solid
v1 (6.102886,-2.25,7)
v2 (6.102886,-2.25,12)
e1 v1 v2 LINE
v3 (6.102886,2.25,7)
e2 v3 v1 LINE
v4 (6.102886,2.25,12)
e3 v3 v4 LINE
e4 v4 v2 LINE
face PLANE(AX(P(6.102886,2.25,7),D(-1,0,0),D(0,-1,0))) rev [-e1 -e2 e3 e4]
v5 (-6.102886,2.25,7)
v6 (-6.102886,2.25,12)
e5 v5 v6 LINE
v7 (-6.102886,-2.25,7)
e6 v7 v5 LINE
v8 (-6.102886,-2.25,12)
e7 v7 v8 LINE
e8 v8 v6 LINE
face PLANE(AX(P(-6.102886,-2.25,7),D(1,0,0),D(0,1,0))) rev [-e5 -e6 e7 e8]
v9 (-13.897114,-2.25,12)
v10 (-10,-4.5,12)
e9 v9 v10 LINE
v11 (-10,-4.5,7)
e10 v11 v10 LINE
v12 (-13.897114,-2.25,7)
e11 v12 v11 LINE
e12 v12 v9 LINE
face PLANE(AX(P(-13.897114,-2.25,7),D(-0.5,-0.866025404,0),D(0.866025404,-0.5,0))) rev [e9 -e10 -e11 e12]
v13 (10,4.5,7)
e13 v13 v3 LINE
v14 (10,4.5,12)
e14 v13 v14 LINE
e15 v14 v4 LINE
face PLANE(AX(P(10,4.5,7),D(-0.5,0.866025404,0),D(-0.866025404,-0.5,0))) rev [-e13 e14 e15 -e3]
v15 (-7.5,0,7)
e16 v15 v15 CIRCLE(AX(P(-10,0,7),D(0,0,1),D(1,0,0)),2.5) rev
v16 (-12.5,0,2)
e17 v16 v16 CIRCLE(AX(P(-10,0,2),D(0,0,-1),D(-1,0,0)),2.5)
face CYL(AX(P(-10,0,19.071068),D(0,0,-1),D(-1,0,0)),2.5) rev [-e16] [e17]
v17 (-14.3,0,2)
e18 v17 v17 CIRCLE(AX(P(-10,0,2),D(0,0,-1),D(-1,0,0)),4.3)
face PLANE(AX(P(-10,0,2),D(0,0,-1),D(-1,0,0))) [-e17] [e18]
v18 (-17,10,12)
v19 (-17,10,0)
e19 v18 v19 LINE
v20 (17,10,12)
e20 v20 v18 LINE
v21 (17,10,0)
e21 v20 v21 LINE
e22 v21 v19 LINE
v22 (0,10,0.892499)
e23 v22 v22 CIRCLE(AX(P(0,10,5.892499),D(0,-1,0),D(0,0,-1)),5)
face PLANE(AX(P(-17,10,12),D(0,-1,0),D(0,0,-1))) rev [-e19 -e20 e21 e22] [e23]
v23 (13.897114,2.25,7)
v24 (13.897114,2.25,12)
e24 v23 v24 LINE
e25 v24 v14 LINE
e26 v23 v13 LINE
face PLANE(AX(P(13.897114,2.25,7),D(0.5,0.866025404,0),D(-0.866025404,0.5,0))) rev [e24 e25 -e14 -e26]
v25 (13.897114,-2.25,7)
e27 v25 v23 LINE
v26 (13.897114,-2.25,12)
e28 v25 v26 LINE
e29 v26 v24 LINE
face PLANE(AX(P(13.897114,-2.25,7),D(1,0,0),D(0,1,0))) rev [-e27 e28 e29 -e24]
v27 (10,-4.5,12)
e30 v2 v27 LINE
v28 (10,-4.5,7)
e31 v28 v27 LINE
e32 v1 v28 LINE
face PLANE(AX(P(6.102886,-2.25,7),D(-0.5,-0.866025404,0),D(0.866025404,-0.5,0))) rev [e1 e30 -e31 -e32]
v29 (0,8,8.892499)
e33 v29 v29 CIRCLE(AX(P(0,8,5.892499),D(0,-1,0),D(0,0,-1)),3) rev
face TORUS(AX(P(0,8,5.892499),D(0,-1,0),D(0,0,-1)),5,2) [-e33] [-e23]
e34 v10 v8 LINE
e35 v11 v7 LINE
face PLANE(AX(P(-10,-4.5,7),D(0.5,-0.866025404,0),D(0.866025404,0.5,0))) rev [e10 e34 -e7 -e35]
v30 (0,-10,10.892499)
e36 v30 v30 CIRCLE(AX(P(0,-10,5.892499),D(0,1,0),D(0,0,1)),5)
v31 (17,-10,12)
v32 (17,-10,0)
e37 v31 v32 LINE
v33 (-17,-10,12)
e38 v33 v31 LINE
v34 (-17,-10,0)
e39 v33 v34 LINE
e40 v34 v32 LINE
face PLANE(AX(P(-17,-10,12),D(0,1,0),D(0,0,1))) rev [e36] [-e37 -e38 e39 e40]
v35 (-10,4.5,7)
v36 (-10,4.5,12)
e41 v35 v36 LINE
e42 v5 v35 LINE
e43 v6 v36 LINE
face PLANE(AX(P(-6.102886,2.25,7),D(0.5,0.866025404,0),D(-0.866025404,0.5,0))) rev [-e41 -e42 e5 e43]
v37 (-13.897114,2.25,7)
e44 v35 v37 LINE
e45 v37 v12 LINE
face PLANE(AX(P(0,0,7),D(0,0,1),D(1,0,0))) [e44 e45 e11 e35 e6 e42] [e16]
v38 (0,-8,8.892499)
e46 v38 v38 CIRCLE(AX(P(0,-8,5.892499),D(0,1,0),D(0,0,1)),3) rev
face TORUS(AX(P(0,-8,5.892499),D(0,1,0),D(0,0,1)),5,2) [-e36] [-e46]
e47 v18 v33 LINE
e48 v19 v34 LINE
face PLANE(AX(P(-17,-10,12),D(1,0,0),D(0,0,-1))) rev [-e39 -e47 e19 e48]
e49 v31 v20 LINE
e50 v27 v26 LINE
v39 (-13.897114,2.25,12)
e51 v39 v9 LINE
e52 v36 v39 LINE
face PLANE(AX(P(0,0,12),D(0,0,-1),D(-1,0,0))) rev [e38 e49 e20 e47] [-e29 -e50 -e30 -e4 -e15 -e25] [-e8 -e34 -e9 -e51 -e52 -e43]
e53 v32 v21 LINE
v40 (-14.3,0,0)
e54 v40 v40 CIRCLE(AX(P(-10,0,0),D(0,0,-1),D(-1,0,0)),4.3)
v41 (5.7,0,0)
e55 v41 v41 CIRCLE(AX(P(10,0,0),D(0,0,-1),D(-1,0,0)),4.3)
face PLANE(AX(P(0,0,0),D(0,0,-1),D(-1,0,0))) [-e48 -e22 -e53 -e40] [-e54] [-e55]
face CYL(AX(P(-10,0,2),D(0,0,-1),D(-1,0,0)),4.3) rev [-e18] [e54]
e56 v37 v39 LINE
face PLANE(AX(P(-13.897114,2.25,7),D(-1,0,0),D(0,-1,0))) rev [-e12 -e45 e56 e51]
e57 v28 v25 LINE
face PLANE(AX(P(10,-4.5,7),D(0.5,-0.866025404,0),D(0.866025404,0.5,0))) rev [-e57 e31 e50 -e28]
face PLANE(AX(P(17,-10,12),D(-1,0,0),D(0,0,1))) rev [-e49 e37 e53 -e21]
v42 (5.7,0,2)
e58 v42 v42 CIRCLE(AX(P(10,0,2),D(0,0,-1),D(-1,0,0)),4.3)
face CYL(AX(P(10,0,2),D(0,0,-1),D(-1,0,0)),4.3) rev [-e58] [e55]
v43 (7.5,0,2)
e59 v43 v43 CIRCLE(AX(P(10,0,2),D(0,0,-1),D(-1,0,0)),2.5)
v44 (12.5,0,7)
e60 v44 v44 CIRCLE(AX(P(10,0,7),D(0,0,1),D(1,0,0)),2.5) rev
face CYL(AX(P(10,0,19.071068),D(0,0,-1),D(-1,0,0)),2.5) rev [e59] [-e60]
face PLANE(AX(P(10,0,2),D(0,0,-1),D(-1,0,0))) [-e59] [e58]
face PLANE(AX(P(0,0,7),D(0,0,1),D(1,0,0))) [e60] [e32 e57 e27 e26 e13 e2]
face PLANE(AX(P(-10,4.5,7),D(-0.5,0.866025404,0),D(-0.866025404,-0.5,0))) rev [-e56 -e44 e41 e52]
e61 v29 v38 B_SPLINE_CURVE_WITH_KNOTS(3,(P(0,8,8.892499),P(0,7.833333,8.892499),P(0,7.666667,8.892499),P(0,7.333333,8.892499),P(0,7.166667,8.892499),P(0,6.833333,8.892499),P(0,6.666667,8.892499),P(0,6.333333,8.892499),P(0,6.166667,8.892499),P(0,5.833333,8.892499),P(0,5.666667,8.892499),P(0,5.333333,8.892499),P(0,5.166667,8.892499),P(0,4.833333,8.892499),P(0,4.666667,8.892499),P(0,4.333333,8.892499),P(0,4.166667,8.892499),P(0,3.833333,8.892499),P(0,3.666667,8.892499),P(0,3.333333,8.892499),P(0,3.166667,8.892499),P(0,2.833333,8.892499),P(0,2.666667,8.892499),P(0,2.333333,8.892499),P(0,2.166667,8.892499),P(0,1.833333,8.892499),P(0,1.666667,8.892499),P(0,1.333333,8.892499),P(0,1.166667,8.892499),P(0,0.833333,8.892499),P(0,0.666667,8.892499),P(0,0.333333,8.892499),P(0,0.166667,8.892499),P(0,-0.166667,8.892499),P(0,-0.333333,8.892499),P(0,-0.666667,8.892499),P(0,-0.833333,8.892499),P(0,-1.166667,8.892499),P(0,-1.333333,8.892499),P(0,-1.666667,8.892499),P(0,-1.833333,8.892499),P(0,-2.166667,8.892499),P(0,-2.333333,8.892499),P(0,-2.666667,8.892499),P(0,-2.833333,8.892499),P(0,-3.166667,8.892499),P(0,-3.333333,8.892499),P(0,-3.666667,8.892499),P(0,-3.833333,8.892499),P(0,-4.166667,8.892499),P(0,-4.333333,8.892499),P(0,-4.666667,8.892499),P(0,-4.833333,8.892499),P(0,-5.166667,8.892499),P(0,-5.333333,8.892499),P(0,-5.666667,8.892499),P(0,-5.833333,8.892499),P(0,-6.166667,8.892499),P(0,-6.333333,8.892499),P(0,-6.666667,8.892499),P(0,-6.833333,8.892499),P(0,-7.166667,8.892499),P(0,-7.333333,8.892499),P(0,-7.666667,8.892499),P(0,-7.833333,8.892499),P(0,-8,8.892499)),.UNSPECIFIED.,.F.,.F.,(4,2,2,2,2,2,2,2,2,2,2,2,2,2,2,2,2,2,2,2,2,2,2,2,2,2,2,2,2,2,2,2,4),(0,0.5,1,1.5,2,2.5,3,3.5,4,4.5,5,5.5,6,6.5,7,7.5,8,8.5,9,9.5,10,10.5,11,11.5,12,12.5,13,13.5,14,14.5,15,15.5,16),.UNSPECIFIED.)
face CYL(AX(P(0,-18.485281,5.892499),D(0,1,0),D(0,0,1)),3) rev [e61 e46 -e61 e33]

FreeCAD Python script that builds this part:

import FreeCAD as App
import Part
import Sketcher
Q = App.Units.Quantity


def edges_at(feature, points):
    """Names of the edges that pass closest to the given points."""
    edges = feature.Shape.Edges
    near = lambda p: min(range(len(edges)), key=lambda i: edges[i].distToShape(Part.Vertex(*p))[0])
    return sorted({f"Edge{near(p) + 1}" for p in points})


def add_polygon(sketch, points):
    """Adds a closed chain of lines whose ends are joined by coincident constraints."""
    first, n = sketch.GeometryCount, len(points)
    for a, b in zip(points, points[1:] + points[:1]):
        sketch.addGeometry(Part.LineSegment(App.Vector(*a, 0), App.Vector(*b, 0)), False)
    for i in range(n):
        sketch.addConstraint(Sketcher.Constraint("Coincident", first + i, 2, first + (i + 1) % n, 1))

doc = App.newDocument("Part")
body = doc.addObject("PartDesign::Body", "Body")

# Sketch on XY plane
sketch1 = doc.addObject("Sketcher::SketchObject", "Sketch")
body.addObject(sketch1)
sketch1.AttachmentSupport = (doc.XY_Plane, [""])
sketch1.MapMode = "FlatFace"
add_polygon(sketch1, [(-17, 10), (-17, -10), (17, -10), (17, 10)])  # lines 0-3
sketch1.addConstraint(Sketcher.Constraint("Vertical", 0))
sketch1.addConstraint(Sketcher.Constraint("Horizontal", 1))
sketch1.addConstraint(Sketcher.Constraint("Vertical", 2))
sketch1.addConstraint(Sketcher.Constraint("Horizontal", 3))
sketch1.addConstraint(Sketcher.Constraint("Symmetric", 0, 2, 2, 2, -1, 1))
sketch1.addConstraint(Sketcher.Constraint("DistanceX", 1, 1, 1, 2, 34.0))
sketch1.addConstraint(Sketcher.Constraint("DistanceY", 0, 2, 0, 1, 20.0))
pad1 = doc.addObject("PartDesign::Pad", "Pad")
body.addObject(pad1)
pad1.Profile = sketch1
pad1.Length = 12

# Sketch on XY plane
sketch2 = doc.addObject("Sketcher::SketchObject", "Sketch001")
body.addObject(sketch2)
sketch2.AttachmentSupport = (doc.XY_Plane, [""])
sketch2.MapMode = "FlatFace"
sketch2.addGeometry(Part.Circle(App.Vector(-10, 0, 0), App.Vector(0, 0, 1), 2.5), False)
sketch2.addGeometry(Part.Circle(App.Vector(10, 0, 0), App.Vector(0, 0, 1), 2.5), False)
sketch2.addConstraint(Sketcher.Constraint("Equal", 0, 1))
sketch2.addConstraint(Sketcher.Constraint("Symmetric", 0, 3, 1, 3, -1, 1))
sketch2.addConstraint(Sketcher.Constraint("PointOnObject", 0, 3, -1))
sketch2.addConstraint(Sketcher.Constraint("Diameter", 0, 5.0))
sketch2.addConstraint(Sketcher.Constraint("DistanceX", 0, 3, -1, 1, 10.0))
pocket1 = doc.addObject("PartDesign::Pocket", "Pocket")
body.addObject(pocket1)
pocket1.Profile = sketch2
pocket1.Length = 12
pocket1.Reversed = True

# Sketch on XY plane
sketch3 = doc.addObject("Sketcher::SketchObject", "Sketch002")
body.addObject(sketch3)
sketch3.AttachmentSupport = (doc.XY_Plane, [""])
sketch3.MapMode = "FlatFace"
sketch3.addGeometry(Part.Circle(App.Vector(-10, 0, 0), App.Vector(0, 0, 1), 4.3), False)
sketch3.addGeometry(Part.Circle(App.Vector(-10, 0, 0), App.Vector(0, 0, 1), 2.5), False)
sketch3.addGeometry(Part.Circle(App.Vector(10, 0, 0), App.Vector(0, 0, 1), 4.3), False)
sketch3.addGeometry(Part.Circle(App.Vector(10, 0, 0), App.Vector(0, 0, 1), 2.5), False)
sketch3.addConstraint(Sketcher.Constraint("Coincident", 1, 3, 0, 3))
sketch3.addConstraint(Sketcher.Constraint("Coincident", 3, 3, 2, 3))
sketch3.addConstraint(Sketcher.Constraint("Equal", 0, 2))
sketch3.addConstraint(Sketcher.Constraint("Equal", 1, 3))
sketch3.addConstraint(Sketcher.Constraint("Symmetric", 0, 3, 2, 3, -1, 1))
sketch3.addConstraint(Sketcher.Constraint("PointOnObject", 0, 3, -1))
sketch3.addConstraint(Sketcher.Constraint("Diameter", 1, 5.0))
sketch3.addConstraint(Sketcher.Constraint("Diameter", 0, 8.6))
sketch3.addConstraint(Sketcher.Constraint("DistanceX", 0, 3, -1, 1, 10.0))
pocket2 = doc.addObject("PartDesign::Pocket", "Pocket001")
body.addObject(pocket2)
pocket2.Profile = sketch3
pocket2.Length = 2
pocket2.Reversed = True

# Sketch on XZ plane
sketch4 = doc.addObject("Sketcher::SketchObject", "Sketch003")
body.addObject(sketch4)
sketch4.AttachmentSupport = (doc.XZ_Plane, [""])
sketch4.MapMode = "FlatFace"
sketch4.AttachmentOffset = App.Placement(App.Vector(0, 0, -10), App.Rotation())
sketch4.addGeometry(Part.Circle(App.Vector(0, 5.892499, 0), App.Vector(0, 0, 1), 3), False)
sketch4.addConstraint(Sketcher.Constraint("PointOnObject", 0, 3, -2))
sketch4.addConstraint(Sketcher.Constraint("Diameter", 0, 6.0))
sketch4.addConstraint(Sketcher.Constraint("DistanceY", -1, 1, 0, 3, 5.892499))
pocket3 = doc.addObject("PartDesign::Pocket", "Pocket002")
body.addObject(pocket3)
pocket3.Profile = sketch4
pocket3.Length = 20
pocket3.Reversed = True
doc.recompute()

fillet = doc.addObject("PartDesign::Fillet", "Fillet")
body.addObject(fillet)
fillet.Base = (pocket3, edges_at(pocket3, [(0, 10, 2.892), (0, -10, 2.892)]))
fillet.Radius = 2

# Sketch on XY plane
sketch5 = doc.addObject("Sketcher::SketchObject", "Sketch004")
body.addObject(sketch5)
sketch5.AttachmentSupport = (doc.XY_Plane, [""])
sketch5.MapMode = "FlatFace"
sketch5.AttachmentOffset = App.Placement(App.Vector(0, 0, 12), App.Rotation())
add_polygon(sketch5, [(-10, 4.5), (-13.897114, 2.25), (-13.897114, -2.25), (-10, -4.5), (-6.102886, -2.25), (-6.102886, 2.25)])  # lines 0-5
add_polygon(sketch5, [(10, 4.5), (6.102886, 2.25), (6.102886, -2.25), (10, -4.5), (13.897114, -2.25), (13.897114, 2.25)])  # lines 6-11
sketch5.addConstraint(Sketcher.Constraint("Vertical", 1))
sketch5.addConstraint(Sketcher.Constraint("Vertical", 4))
sketch5.addConstraint(Sketcher.Constraint("Vertical", 7))
sketch5.addConstraint(Sketcher.Constraint("Vertical", 10))
sketch5.addConstraint(Sketcher.Constraint("Symmetric", 3, 2, 6, 2, -1, 1))
sketch5.addConstraint(Sketcher.Constraint("Symmetric", 5, 2, 8, 2, -1, 1))
sketch5.addConstraint(Sketcher.Constraint("Symmetric", 0, 2, 9, 2, -1, 1))
sketch5.addConstraint(Sketcher.Constraint("Symmetric", 2, 2, 11, 2, -1, 1))
sketch5.addConstraint(Sketcher.Constraint("Symmetric", 2, 2, 8, 2, -2))
sketch5.addConstraint(Sketcher.Constraint("Parallel", 0, 3))
sketch5.addConstraint(Sketcher.Constraint("Parallel", 2, 5))
sketch5.addConstraint(Sketcher.Constraint("Parallel", 5, 8))
sketch5.addConstraint(Sketcher.Constraint("Parallel", 8, 11))
sketch5.addConstraint(Sketcher.Constraint("Horizontal", 1, 2, 3, 2))
sketch5.addConstraint(Sketcher.Constraint("Horizontal", 0, 2, 4, 2))
sketch5.addConstraint(Sketcher.Constraint("Angle", 0, Q("-150 deg")))
sketch5.addConstraint(Sketcher.Constraint("DistanceY", 1, 2, 1, 1, 4.5))
sketch5.addConstraint(Sketcher.Constraint("DistanceX", 2, 2, -1, 1, 10.0))
sketch5.addConstraint(Sketcher.Constraint("DistanceY", 2, 2, 5, 2, 9.0))
pocket4 = doc.addObject("PartDesign::Pocket", "Pocket003")
body.addObject(pocket4)
pocket4.Profile = sketch5
pocket4.Length = 5

doc.recompute()
